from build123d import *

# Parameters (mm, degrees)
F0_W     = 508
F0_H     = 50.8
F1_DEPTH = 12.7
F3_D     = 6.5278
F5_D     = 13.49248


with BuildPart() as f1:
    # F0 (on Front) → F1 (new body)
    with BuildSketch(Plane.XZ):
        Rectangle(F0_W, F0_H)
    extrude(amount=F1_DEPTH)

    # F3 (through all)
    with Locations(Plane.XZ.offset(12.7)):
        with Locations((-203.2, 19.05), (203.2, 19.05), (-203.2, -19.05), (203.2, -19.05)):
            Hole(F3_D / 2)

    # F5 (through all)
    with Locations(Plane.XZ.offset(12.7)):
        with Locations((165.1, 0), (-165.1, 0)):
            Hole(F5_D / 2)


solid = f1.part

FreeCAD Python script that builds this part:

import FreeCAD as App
import Part
import Sketcher
from FreeCAD import Vector
Q = App.Units.Quantity


def add_polygon(sketch, points):
    """Adds a closed chain of lines whose ends are joined by coincident constraints."""
    first, n = sketch.GeometryCount, len(points)
    for a, b in zip(points, points[1:] + points[:1]):
        sketch.addGeometry(Part.LineSegment(App.Vector(*a, 0), App.Vector(*b, 0)), False)
    for i in range(n):
        sketch.addConstraint(Sketcher.Constraint("Coincident", first + i, 2, first + (i + 1) % n, 1))

doc = App.newDocument("Part")
body = doc.addObject("PartDesign::Body", "Body")

sketch1 = body.newObject("Sketcher::SketchObject", "Sketch")
sketch1.AttachmentSupport = (doc.getObject("XZ_Plane"), [""])
sketch1.MapMode = "FlatFace"
add_polygon(sketch1, [(-254, 25.4), (-254, -25.4), (254, -25.4), (254, 25.4)])
sketch1.addConstraint([
    Sketcher.Constraint("Vertical", 0),
    Sketcher.Constraint("Horizontal", 1),
    Sketcher.Constraint("Vertical", 2),
    Sketcher.Constraint("Horizontal", 3),
    Sketcher.Constraint("Symmetric", 0, 2, 2, 2, -1, 1),
    Sketcher.Constraint("DistanceX", 1, 1, 1, 2, Q("20 in")),
    Sketcher.Constraint("DistanceY", 0, 2, 0, 1, Q("2 in")),
])
pad1 = body.newObject("PartDesign::Pad", "Pad")
pad1.Profile = sketch1
pad1.Length = Q("0.5 in")

sketch2 = body.newObject("Sketcher::SketchObject", "Sketch001")
sketch2.AttachmentSupport = (doc.getObject("XZ_Plane"), [""])
sketch2.MapMode = "FlatFace"
sketch2.AttachmentOffset = App.Placement(Vector(0, 0, 0.5 * 25.4), App.Rotation())
sketch2.addGeometry([
    Part.Circle(Vector(-203.2, 19.05, 0), Vector(0, 0, 1), 3.2639),
    Part.Circle(Vector(203.2, 19.05, 0), Vector(0, 0, 1), 3.2639),
    Part.Circle(Vector(-203.2, -19.05, 0), Vector(0, 0, 1), 3.2639),
    Part.Circle(Vector(203.2, -19.05, 0), Vector(0, 0, 1), 3.2639),
], False)
sketch2.addConstraint([
    Sketcher.Constraint("Equal", 0, 1),
    Sketcher.Constraint("Equal", 1, 2),
    Sketcher.Constraint("Equal", 2, 3),
    Sketcher.Constraint("Symmetric", 1, 3, 2, 3, -1, 1),
    Sketcher.Constraint("Symmetric", 0, 3, 3, 3, -1, 1),
    Sketcher.Constraint("Symmetric", 0, 3, 1, 3, -2),
    Sketcher.Constraint("Diameter", 0, Q("0.257 in")),
    Sketcher.Constraint("DistanceX", 0, 3, -1, 1, Q("8 in")),
    Sketcher.Constraint("DistanceY", 2, 3, 0, 3, Q("1.5 in")),
])
doc.recompute()
hole = body.newObject("PartDesign::Hole", "Hole")
hole.Profile = sketch2
hole.ThreadType = "None"
hole.Diameter = Q("0.257 in")
hole.DepthType = "ThroughAll"

sketch3 = body.newObject("Sketcher::SketchObject", "Sketch002")
sketch3.AttachmentSupport = (doc.getObject("XZ_Plane"), [""])
sketch3.MapMode = "FlatFace"
sketch3.AttachmentOffset = App.Placement(Vector(0, 0, 0.5 * 25.4), App.Rotation())
sketch3.addGeometry([
    Part.Circle(Vector(165.1, 0, 0), Vector(0, 0, 1), 6.74624),
    Part.Circle(Vector(-165.1, 0, 0), Vector(0, 0, 1), 6.74624),
], False)
sketch3.addConstraint([
    Sketcher.Constraint("Equal", 0, 1),
    Sketcher.Constraint("Symmetric", 0, 3, 1, 3, -1, 1),
    Sketcher.Constraint("PointOnObject", 0, 3, -1),
    Sketcher.Constraint("DistanceX", 1, 3, 0, 3, Q("13 in")),
    Sketcher.Constraint("Diameter", 0, Q("0.5312 in")),
])
doc.recompute()
hole2 = body.newObject("PartDesign::Hole", "Hole001")
hole2.Profile = sketch3
hole2.ThreadType = "None"
hole2.Diameter = Q("0.5312 in")
hole2.DepthType = "ThroughAll"

doc.recompute()
